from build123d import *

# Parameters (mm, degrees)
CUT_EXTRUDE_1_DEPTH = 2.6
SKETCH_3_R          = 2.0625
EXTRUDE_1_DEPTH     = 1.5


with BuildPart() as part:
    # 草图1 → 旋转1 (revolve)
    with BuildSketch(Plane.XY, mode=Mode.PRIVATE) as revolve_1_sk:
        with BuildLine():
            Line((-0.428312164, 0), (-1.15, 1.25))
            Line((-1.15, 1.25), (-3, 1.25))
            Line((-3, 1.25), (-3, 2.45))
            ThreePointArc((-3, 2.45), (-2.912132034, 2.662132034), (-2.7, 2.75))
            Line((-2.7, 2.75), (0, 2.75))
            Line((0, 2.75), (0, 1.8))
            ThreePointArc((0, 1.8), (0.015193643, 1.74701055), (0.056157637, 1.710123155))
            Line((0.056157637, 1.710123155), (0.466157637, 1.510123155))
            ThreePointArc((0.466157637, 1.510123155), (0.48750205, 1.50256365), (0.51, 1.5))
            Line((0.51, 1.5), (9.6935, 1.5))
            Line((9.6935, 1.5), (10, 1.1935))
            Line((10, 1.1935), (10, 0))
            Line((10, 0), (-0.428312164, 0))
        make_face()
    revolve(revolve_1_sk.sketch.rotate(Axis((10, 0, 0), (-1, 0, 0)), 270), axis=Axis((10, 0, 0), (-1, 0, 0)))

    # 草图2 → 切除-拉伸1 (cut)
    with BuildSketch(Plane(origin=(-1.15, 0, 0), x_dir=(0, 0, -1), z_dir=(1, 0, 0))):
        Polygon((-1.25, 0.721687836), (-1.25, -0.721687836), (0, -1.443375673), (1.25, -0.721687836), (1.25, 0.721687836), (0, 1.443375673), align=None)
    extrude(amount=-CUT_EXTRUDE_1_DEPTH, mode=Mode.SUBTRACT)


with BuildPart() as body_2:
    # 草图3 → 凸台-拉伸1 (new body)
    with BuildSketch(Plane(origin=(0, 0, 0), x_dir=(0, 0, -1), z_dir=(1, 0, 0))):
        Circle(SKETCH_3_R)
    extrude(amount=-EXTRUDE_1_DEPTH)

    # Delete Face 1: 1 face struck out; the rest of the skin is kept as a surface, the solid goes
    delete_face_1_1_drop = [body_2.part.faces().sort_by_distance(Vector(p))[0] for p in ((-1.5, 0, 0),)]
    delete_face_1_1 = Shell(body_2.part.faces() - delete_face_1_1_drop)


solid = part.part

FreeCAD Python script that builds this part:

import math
import FreeCAD as App
import Part
import Sketcher
from FreeCAD import Vector
Q = App.Units.Quantity

doc = App.newDocument("Part")
body = doc.addObject("PartDesign::Body", "Body")

# Sketch on XY plane
sketch1 = doc.addObject("Sketcher::SketchObject", "Sketch")
body.addObject(sketch1)
sketch1.AttachmentSupport = (doc.XY_Plane, [""])
sketch1.MapMode = "FlatFace"
sketch1.addGeometry(Part.LineSegment(Vector(-1.15, 1.25, 0), Vector(-0.428312, 0, 0)), False)
sketch1.addGeometry(Part.LineSegment(Vector(-0.428312, 0, 0), Vector(10, 0, 0)), False)
sketch1.addGeometry(Part.LineSegment(Vector(10, 0, 0), Vector(10, 1.1935, 0)), False)
sketch1.addGeometry(Part.LineSegment(Vector(10, 1.1935, 0), Vector(9.6935, 1.5, 0)), False)
sketch1.addGeometry(Part.LineSegment(Vector(9.6935, 1.5, 0), Vector(0.51, 1.5, 0)), False)
sketch1.addGeometry(Part.ArcOfCircle(Part.Circle(Vector(0.51, 1.6, 0), Vector(0, 0, 1), 0.1), math.radians(-116.003346), math.radians(-89.999999)), False)
sketch1.addGeometry(Part.LineSegment(Vector(0.466158, 1.510123, 0), Vector(0.056158, 1.710123, 0)), False)
sketch1.addGeometry(Part.ArcOfCircle(Part.Circle(Vector(0.1, 1.8, 0), Vector(0, 0, 1), 0.1), math.radians(180), math.radians(243.996654)), False)
sketch1.addGeometry(Part.LineSegment(Vector(0, 1.8, 0), Vector(0, 2.75, 0)), False)
sketch1.addGeometry(Part.LineSegment(Vector(0, 2.75, 0), Vector(-2.7, 2.75, 0)), False)
sketch1.addGeometry(Part.ArcOfCircle(Part.Circle(Vector(-2.7, 2.45, 0), Vector(0, 0, 1), 0.3), math.radians(90), math.radians(180)), False)
sketch1.addGeometry(Part.LineSegment(Vector(-3, 2.45, 0), Vector(-3, 1.25, 0)), False)
sketch1.addGeometry(Part.LineSegment(Vector(-3, 1.25, 0), Vector(-1.15, 1.25, 0)), False)
sketch1.addConstraint(Sketcher.Constraint("Coincident", 0, 2, 1, 1))
sketch1.addConstraint(Sketcher.Constraint("Coincident", 1, 2, 2, 1))
sketch1.addConstraint(Sketcher.Constraint("Coincident", 2, 2, 3, 1))
sketch1.addConstraint(Sketcher.Constraint("Coincident", 3, 2, 4, 1))
sketch1.addConstraint(Sketcher.Constraint("Tangent", 4, 2, 5, 2))
sketch1.addConstraint(Sketcher.Constraint("Tangent", 5, 1, 6, 1))
sketch1.addConstraint(Sketcher.Constraint("Tangent", 6, 2, 7, 2))
sketch1.addConstraint(Sketcher.Constraint("Tangent", 7, 1, 8, 1))
sketch1.addConstraint(Sketcher.Constraint("Coincident", 8, 2, 9, 1))
sketch1.addConstraint(Sketcher.Constraint("Tangent", 9, 2, 10, 1))
sketch1.addConstraint(Sketcher.Constraint("Tangent", 10, 2, 11, 1))
sketch1.addConstraint(Sketcher.Constraint("Coincident", 11, 2, 12, 1))
sketch1.addConstraint(Sketcher.Constraint("Coincident", 12, 2, 0, 1))
sketch1.addConstraint(Sketcher.Constraint("Horizontal", 1))
sketch1.addConstraint(Sketcher.Constraint("Vertical", 2))
sketch1.addConstraint(Sketcher.Constraint("Horizontal", 4))
sketch1.addConstraint(Sketcher.Constraint("Vertical", 8))
sketch1.addConstraint(Sketcher.Constraint("Horizontal", 9))
sketch1.addConstraint(Sketcher.Constraint("Vertical", 11))
sketch1.addConstraint(Sketcher.Constraint("Horizontal", 12))
sketch1.addConstraint(Sketcher.Constraint("Equal", 5, 7))
sketch1.addConstraint(Sketcher.Constraint("PointOnObject", 0, 2, -1))
sketch1.addConstraint(Sketcher.Constraint("PointOnObject", 7, 1, -2))
sketch1.addConstraint(Sketcher.Constraint("Radius", 5, 0.1))
sketch1.addConstraint(Sketcher.Constraint("Radius", 10, 0.3))
sketch1.addConstraint(Sketcher.Constraint("Angle", 0, Q("-60 deg")))
sketch1.addConstraint(Sketcher.Constraint("Angle", 3, Q("135 deg")))
sketch1.addConstraint(Sketcher.Constraint("DistanceX", 9, 2, 9, 1, 2.7))
sketch1.addConstraint(Sketcher.Constraint("DistanceY", 11, 2, 11, 1, 1.2))
sketch1.addConstraint(Sketcher.Constraint("DistanceX", -1, 1, 1, 2, 10.0))
sketch1.addConstraint(Sketcher.Constraint("DistanceX", 12, 1, 12, 2, 1.85))
sketch1.addConstraint(Sketcher.Constraint("DistanceY", 8, 1, 8, 2, 0.95))
sketch1.addConstraint(Sketcher.Constraint("DistanceY", -1, 1, 5, 3, 1.6))
sketch1.addConstraint(Sketcher.Constraint("DistanceY", -1, 1, 7, 3, 1.8))
sketch1.addConstraint(Sketcher.Constraint("DistanceX", -1, 1, 5, 3, 0.51))
sketch1.addConstraint(Sketcher.Constraint("DistanceX", 4, 2, 4, 1, 9.1835))
revolution = doc.addObject("PartDesign::Revolution", "Revolution")
body.addObject(revolution)
revolution.Profile = sketch1
revolution.ReferenceAxis = (sketch1, ["H_Axis"])
revolution.Angle = 360

# Sketch on YZ plane
sketch2 = doc.addObject("Sketcher::SketchObject", "Sketch001")
body.addObject(sketch2)
sketch2.AttachmentSupport = (doc.YZ_Plane, [""])
sketch2.MapMode = "FlatFace"
sketch2.AttachmentOffset = App.Placement(Vector(0, 0, -1.15), App.Rotation())
sketch2.addGeometry(Part.LineSegment(Vector(0.721688, 1.25, 0), Vector(-0.721688, 1.25, 0)), False)
sketch2.addGeometry(Part.LineSegment(Vector(-0.721688, 1.25, 0), Vector(-1.443376, 0, 0)), False)
sketch2.addGeometry(Part.LineSegment(Vector(-1.443376, 0, 0), Vector(-0.721688, -1.25, 0)), False)
sketch2.addGeometry(Part.LineSegment(Vector(-0.721688, -1.25, 0), Vector(0.721688, -1.25, 0)), False)
sketch2.addGeometry(Part.LineSegment(Vector(0.721688, -1.25, 0), Vector(1.443376, 0, 0)), False)
sketch2.addGeometry(Part.LineSegment(Vector(1.443376, 0, 0), Vector(0.721688, 1.25, 0)), False)
sketch2.addConstraint(Sketcher.Constraint("Coincident", 0, 2, 1, 1))
sketch2.addConstraint(Sketcher.Constraint("Coincident", 1, 2, 2, 1))
sketch2.addConstraint(Sketcher.Constraint("Coincident", 2, 2, 3, 1))
sketch2.addConstraint(Sketcher.Constraint("Coincident", 3, 2, 4, 1))
sketch2.addConstraint(Sketcher.Constraint("Coincident", 4, 2, 5, 1))
sketch2.addConstraint(Sketcher.Constraint("Coincident", 5, 2, 0, 1))
sketch2.addConstraint(Sketcher.Constraint("Horizontal", 0))
sketch2.addConstraint(Sketcher.Constraint("Horizontal", 3))
sketch2.addConstraint(Sketcher.Constraint("Symmetric", 0, 2, 3, 2, -1, 1))
sketch2.addConstraint(Sketcher.Constraint("Symmetric", 1, 2, 4, 2, -1, 1))
sketch2.addConstraint(Sketcher.Constraint("PointOnObject", 1, 2, -1))
sketch2.addConstraint(Sketcher.Constraint("Parallel", 2, 5))
sketch2.addConstraint(Sketcher.Constraint("Vertical", 0, 2, 2, 2))
sketch2.addConstraint(Sketcher.Constraint("Angle", 1, Q("-120 deg")))
sketch2.addConstraint(Sketcher.Constraint("DistanceY", 2, 2, 0, 2, 2.5))
sketch2.addConstraint(Sketcher.Constraint("DistanceX", 0, 2, 0, 1, 1.443376))
pocket1 = doc.addObject("PartDesign::Pocket", "Pocket")
body.addObject(pocket1)
pocket1.Profile = sketch2
pocket1.Length = 2.6
body2 = doc.addObject("PartDesign::Body", "Body001")

# Sketch on YZ plane
sketch3 = doc.addObject("Sketcher::SketchObject", "Sketch002")
body2.addObject(sketch3)
sketch3.AttachmentSupport = (doc.getObject("YZ_Plane001"), [""])
sketch3.MapMode = "FlatFace"
sketch3.addGeometry(Part.Circle(Vector(0, 0, 0), Vector(0, 0, 1), 2.0625), False)
sketch3.addConstraint(Sketcher.Constraint("Coincident", 0, 3, -1, 1))
sketch3.addConstraint(Sketcher.Constraint("Diameter", 0, 4.125))
pad1 = doc.addObject("PartDesign::Pad", "Pad")
body2.addObject(pad1)
pad1.Profile = sketch3
pad1.Length = 1.5
pad1.Reversed = True
body2.Visibility = False

doc.recompute()
